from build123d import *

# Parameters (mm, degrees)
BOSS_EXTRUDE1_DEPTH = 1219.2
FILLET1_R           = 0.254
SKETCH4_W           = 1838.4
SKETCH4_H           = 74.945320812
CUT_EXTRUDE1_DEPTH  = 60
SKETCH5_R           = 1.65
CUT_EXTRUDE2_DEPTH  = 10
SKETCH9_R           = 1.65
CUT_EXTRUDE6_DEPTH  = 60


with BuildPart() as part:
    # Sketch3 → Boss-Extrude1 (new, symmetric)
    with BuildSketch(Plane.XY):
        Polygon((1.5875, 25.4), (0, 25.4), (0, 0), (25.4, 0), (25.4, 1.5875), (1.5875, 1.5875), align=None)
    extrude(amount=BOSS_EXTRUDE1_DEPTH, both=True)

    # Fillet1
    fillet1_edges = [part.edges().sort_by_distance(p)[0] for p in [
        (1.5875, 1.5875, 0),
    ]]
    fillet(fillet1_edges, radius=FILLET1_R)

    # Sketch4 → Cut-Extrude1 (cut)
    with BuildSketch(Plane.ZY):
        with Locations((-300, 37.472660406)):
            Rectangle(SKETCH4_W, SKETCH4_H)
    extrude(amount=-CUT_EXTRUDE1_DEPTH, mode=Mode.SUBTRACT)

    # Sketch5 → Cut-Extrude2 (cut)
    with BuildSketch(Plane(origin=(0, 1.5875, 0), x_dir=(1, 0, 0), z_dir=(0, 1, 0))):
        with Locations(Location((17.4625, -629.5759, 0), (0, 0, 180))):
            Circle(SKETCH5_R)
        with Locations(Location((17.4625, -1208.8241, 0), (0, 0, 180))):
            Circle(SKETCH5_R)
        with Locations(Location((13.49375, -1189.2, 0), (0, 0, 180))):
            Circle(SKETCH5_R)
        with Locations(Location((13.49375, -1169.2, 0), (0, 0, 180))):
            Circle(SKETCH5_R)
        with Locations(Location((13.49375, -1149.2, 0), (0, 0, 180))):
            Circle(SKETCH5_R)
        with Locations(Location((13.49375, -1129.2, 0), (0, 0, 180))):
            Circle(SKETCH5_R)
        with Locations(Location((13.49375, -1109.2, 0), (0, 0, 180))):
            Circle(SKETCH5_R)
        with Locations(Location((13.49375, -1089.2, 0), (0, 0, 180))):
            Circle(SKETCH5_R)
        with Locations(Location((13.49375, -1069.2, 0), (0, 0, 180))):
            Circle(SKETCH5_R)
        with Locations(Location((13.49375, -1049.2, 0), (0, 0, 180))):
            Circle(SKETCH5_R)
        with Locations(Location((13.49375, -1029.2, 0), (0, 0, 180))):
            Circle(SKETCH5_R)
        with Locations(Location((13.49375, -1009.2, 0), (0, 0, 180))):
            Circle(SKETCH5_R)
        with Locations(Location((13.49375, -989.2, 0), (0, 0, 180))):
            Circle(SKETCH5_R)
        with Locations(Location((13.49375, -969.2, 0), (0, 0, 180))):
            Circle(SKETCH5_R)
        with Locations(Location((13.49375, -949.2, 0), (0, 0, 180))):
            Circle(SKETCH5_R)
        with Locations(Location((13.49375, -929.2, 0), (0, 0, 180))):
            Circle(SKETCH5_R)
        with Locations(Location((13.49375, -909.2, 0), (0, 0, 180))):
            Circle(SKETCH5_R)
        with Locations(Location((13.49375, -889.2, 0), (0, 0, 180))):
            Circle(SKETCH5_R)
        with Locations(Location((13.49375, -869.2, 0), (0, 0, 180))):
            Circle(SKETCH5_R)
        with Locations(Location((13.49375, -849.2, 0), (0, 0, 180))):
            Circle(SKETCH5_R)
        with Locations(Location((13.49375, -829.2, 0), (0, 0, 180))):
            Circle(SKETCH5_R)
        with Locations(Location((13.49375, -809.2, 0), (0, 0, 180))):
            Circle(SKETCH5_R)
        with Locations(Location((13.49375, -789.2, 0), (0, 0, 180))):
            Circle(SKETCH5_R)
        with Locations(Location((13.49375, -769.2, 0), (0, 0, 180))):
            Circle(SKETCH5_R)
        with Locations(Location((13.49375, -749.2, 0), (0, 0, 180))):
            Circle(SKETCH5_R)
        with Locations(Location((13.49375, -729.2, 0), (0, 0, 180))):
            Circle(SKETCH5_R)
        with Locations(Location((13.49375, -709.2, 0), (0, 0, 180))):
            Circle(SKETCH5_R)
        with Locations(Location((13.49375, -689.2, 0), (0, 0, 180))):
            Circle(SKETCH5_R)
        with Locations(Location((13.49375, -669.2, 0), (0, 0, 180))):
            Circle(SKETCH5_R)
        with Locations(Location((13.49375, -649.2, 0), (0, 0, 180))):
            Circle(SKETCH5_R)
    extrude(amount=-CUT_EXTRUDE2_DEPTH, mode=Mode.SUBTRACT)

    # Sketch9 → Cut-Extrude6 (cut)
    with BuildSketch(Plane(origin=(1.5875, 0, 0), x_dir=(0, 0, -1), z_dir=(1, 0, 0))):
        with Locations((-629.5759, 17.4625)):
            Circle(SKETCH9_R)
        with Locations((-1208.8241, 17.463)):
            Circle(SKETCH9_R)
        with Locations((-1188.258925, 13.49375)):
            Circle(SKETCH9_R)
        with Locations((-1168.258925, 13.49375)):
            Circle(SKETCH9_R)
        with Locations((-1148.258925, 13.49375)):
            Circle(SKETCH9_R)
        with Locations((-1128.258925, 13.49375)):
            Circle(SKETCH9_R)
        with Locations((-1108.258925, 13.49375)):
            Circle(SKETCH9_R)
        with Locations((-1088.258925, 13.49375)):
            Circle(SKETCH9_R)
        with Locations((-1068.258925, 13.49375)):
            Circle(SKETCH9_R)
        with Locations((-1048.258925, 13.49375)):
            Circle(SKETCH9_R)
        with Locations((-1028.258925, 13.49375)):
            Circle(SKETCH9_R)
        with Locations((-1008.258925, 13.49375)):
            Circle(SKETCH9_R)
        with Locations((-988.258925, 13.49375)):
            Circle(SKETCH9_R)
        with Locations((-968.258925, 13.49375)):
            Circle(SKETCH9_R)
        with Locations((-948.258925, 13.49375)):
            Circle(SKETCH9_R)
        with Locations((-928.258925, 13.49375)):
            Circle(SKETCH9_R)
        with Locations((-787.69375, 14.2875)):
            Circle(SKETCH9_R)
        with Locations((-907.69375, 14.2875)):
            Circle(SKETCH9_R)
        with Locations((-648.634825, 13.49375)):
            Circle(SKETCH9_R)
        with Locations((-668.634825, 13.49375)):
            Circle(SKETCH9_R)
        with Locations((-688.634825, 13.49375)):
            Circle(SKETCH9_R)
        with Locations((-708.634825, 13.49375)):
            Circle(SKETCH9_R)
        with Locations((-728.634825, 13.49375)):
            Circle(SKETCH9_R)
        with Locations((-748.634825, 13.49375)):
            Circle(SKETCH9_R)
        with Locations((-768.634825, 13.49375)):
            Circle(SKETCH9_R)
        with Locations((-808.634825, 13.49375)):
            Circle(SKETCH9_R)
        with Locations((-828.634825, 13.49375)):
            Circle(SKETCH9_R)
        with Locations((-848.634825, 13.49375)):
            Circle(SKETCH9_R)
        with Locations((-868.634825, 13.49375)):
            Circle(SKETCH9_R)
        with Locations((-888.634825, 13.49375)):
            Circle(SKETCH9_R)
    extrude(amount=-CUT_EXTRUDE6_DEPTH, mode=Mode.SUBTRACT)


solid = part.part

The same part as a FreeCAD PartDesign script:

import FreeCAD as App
import Part
import Sketcher

V = App.Vector
Q = App.Units.Quantity


def edges_at(feature, points):
    """Names of the edges that pass closest to the given points."""
    edges = feature.Shape.Edges
    near = lambda p: min(range(len(edges)), key=lambda i: edges[i].distToShape(Part.Vertex(*p))[0])
    return sorted({f"Edge{near(p) + 1}" for p in points})


def add_polygon(sketch, points):
    """Adds a closed chain of lines whose ends are joined by coincident constraints."""
    first, n = sketch.GeometryCount, len(points)
    for a, b in zip(points, points[1:] + points[:1]):
        sketch.addGeometry(Part.LineSegment(App.Vector(*a, 0), App.Vector(*b, 0)), False)
    for i in range(n):
        sketch.addConstraint(Sketcher.Constraint("Coincident", first + i, 2, first + (i + 1) % n, 1))

doc = App.newDocument("Part")
params = doc.addObject("Spreadsheet::Sheet", "Params")
for row, (alias, value) in enumerate([
    ("sketch1_width", "1 in"),
    ("sketch1_width2", "0.0625 in"),
    ("pad1_length", "96 in"),
    ("fillet_radius", "0.01 in"),
    ("pocket1_length", "60 mm"),
    ("pocket2_length", "10 mm"),
    ("pocket3_length", "60 mm"),
], start=1):
    params.set(f"A{row}", alias)
    params.set(f"B{row}", "=" + value)
    params.setAlias(f"B{row}", alias)

body = doc.addObject("PartDesign::Body", "Body")

# Sketch on XY plane
sketch1 = body.newObject("Sketcher::SketchObject", "Sketch")
sketch1.AttachmentSupport = (doc.getObject("XY_Plane"), [""])
sketch1.MapMode = "FlatFace"
add_polygon(sketch1, [(1.5875, 25.4), (0, 25.4), (0, 0), (25.4, 0), (25.4, 1.5875), (1.5875, 1.5875)])  # lines 0-5
sketch1.addConstraint(Sketcher.Constraint("Horizontal", 0))
sketch1.addConstraint(Sketcher.Constraint("Vertical", 1))
sketch1.addConstraint(Sketcher.Constraint("Horizontal", 2))
sketch1.addConstraint(Sketcher.Constraint("Vertical", 3))
sketch1.addConstraint(Sketcher.Constraint("Horizontal", 4))
sketch1.addConstraint(Sketcher.Constraint("Vertical", 5))
sketch1.addConstraint(Sketcher.Constraint("Coincident", 1, 2, -1, 1))
sketch1.addConstraint(Sketcher.Constraint("Equal", 2, 1))
sketch1.addConstraint(Sketcher.Constraint("Equal", 0, 3))
sketch1.addConstraint(Sketcher.Constraint("DistanceX", 2, 1, 2, 2, Q("1 in")))
sketch1.addConstraint(Sketcher.Constraint("DistanceX", 0, 2, 0, 1, Q("0.0625 in")))
sketch1.setExpression("Constraints[15]", "Params.sketch1_width")
sketch1.setExpression("Constraints[16]", "Params.sketch1_width2")
pad1 = body.newObject("PartDesign::Pad", "Pad")
pad1.Profile = sketch1
pad1.setExpression("Length", "Params.pad1_length")
pad1.Midplane = True
doc.recompute()

fillet = body.newObject("PartDesign::Fillet", "Fillet")
fillet.Base = (pad1, edges_at(pad1, [(1.587, 1.587, 0)]))
fillet.setExpression("Radius", "Params.fillet_radius")

# Sketch on YZ plane
sketch2 = body.newObject("Sketcher::SketchObject", "Sketch001")
sketch2.AttachmentSupport = (doc.getObject("YZ_Plane"), [""])
sketch2.MapMode = "FlatFace"
add_polygon(sketch2, [(74.945321, -1219.2), (0, -1219.2), (0, 619.2), (74.945321, 619.2)])  # lines 0-3
sketch2.addConstraint(Sketcher.Constraint("Horizontal", 0))
sketch2.addConstraint(Sketcher.Constraint("Vertical", 1))
sketch2.addConstraint(Sketcher.Constraint("Horizontal", 2))
sketch2.addConstraint(Sketcher.Constraint("Vertical", 3))
sketch2.addConstraint(Sketcher.Constraint("PointOnObject", 0, 2, -2))
sketch2.addConstraint(Sketcher.Constraint("DistanceY", 0, 2, -1, 1, Q("48 in")))
sketch2.addConstraint(Sketcher.Constraint("DistanceY", 1, 1, 1, 2, 1838.4))
sketch2.addConstraint(Sketcher.Constraint("DistanceX", 0, 2, 0, 1, 74.945321))
pocket1 = body.newObject("PartDesign::Pocket", "Pocket")
pocket1.Profile = sketch2
pocket1.setExpression("Length", "Params.pocket1_length")
pocket1.Reversed = True

# Sketch on XZ plane
sketch3 = body.newObject("Sketcher::SketchObject", "Sketch002")
sketch3.AttachmentSupport = (doc.getObject("XZ_Plane"), [""])
sketch3.MapMode = "FlatFace"
sketch3.AttachmentOffset = App.Placement(V(0, 0, -0.0625 * 25.4), App.Rotation())
sketch3.addGeometry(Part.Circle(V(17.4625, 629.5759, 0), V(0, 0, 1), 1.65), False)
sketch3.addGeometry(Part.Circle(V(17.4625, 1208.8241, 0), V(0, 0, 1), 1.65), False)
sketch3.addGeometry(Part.Circle(V(13.49375, 1189.2, 0), V(0, 0, 1), 1.65), False)
sketch3.addGeometry(Part.Circle(V(13.49375, 1169.2, 0), V(0, 0, 1), 1.65), False)
sketch3.addGeometry(Part.Circle(V(13.49375, 1149.2, 0), V(0, 0, 1), 1.65), False)
sketch3.addGeometry(Part.Circle(V(13.49375, 1129.2, 0), V(0, 0, 1), 1.65), False)
sketch3.addGeometry(Part.Circle(V(13.49375, 1109.2, 0), V(0, 0, 1), 1.65), False)
sketch3.addGeometry(Part.Circle(V(13.49375, 1089.2, 0), V(0, 0, 1), 1.65), False)
sketch3.addGeometry(Part.Circle(V(13.49375, 1069.2, 0), V(0, 0, 1), 1.65), False)
sketch3.addGeometry(Part.Circle(V(13.49375, 1049.2, 0), V(0, 0, 1), 1.65), False)
sketch3.addGeometry(Part.Circle(V(13.49375, 1029.2, 0), V(0, 0, 1), 1.65), False)
sketch3.addGeometry(Part.Circle(V(13.49375, 1009.2, 0), V(0, 0, 1), 1.65), False)
sketch3.addGeometry(Part.Circle(V(13.49375, 989.2, 0), V(0, 0, 1), 1.65), False)
sketch3.addGeometry(Part.Circle(V(13.49375, 969.2, 0), V(0, 0, 1), 1.65), False)
sketch3.addGeometry(Part.Circle(V(13.49375, 949.2, 0), V(0, 0, 1), 1.65), False)
sketch3.addGeometry(Part.Circle(V(13.49375, 929.2, 0), V(0, 0, 1), 1.65), False)
sketch3.addGeometry(Part.Circle(V(13.49375, 909.2, 0), V(0, 0, 1), 1.65), False)
sketch3.addGeometry(Part.Circle(V(13.49375, 889.2, 0), V(0, 0, 1), 1.65), False)
sketch3.addGeometry(Part.Circle(V(13.49375, 869.2, 0), V(0, 0, 1), 1.65), False)
sketch3.addGeometry(Part.Circle(V(13.49375, 849.2, 0), V(0, 0, 1), 1.65), False)
sketch3.addGeometry(Part.Circle(V(13.49375, 829.2, 0), V(0, 0, 1), 1.65), False)
sketch3.addGeometry(Part.Circle(V(13.49375, 809.2, 0), V(0, 0, 1), 1.65), False)
sketch3.addGeometry(Part.Circle(V(13.49375, 789.2, 0), V(0, 0, 1), 1.65), False)
sketch3.addGeometry(Part.Circle(V(13.49375, 769.2, 0), V(0, 0, 1), 1.65), False)
sketch3.addGeometry(Part.Circle(V(13.49375, 749.2, 0), V(0, 0, 1), 1.65), False)
sketch3.addGeometry(Part.Circle(V(13.49375, 729.2, 0), V(0, 0, 1), 1.65), False)
sketch3.addGeometry(Part.Circle(V(13.49375, 709.2, 0), V(0, 0, 1), 1.65), False)
sketch3.addGeometry(Part.Circle(V(13.49375, 689.2, 0), V(0, 0, 1), 1.65), False)
sketch3.addGeometry(Part.Circle(V(13.49375, 669.2, 0), V(0, 0, 1), 1.65), False)
sketch3.addGeometry(Part.Circle(V(13.49375, 649.2, 0), V(0, 0, 1), 1.65), False)
sketch3.addConstraint(Sketcher.Constraint("Equal", 0, 1))
sketch3.addConstraint(Sketcher.Constraint("Equal", 1, 2))
sketch3.addConstraint(Sketcher.Constraint("Equal", 2, 3))
sketch3.addConstraint(Sketcher.Constraint("Equal", 3, 4))
sketch3.addConstraint(Sketcher.Constraint("Equal", 4, 5))
sketch3.addConstraint(Sketcher.Constraint("Equal", 5, 6))
sketch3.addConstraint(Sketcher.Constraint("Equal", 6, 7))
sketch3.addConstraint(Sketcher.Constraint("Equal", 7, 8))
sketch3.addConstraint(Sketcher.Constraint("Equal", 8, 9))
sketch3.addConstraint(Sketcher.Constraint("Equal", 9, 10))
sketch3.addConstraint(Sketcher.Constraint("Equal", 10, 11))
sketch3.addConstraint(Sketcher.Constraint("Equal", 11, 12))
sketch3.addConstraint(Sketcher.Constraint("Equal", 12, 13))
sketch3.addConstraint(Sketcher.Constraint("Equal", 13, 14))
sketch3.addConstraint(Sketcher.Constraint("Equal", 14, 15))
sketch3.addConstraint(Sketcher.Constraint("Equal", 15, 16))
sketch3.addConstraint(Sketcher.Constraint("Equal", 16, 17))
sketch3.addConstraint(Sketcher.Constraint("Equal", 17, 18))
sketch3.addConstraint(Sketcher.Constraint("Equal", 18, 19))
sketch3.addConstraint(Sketcher.Constraint("Equal", 19, 20))
sketch3.addConstraint(Sketcher.Constraint("Equal", 20, 21))
sketch3.addConstraint(Sketcher.Constraint("Equal", 21, 22))
sketch3.addConstraint(Sketcher.Constraint("Equal", 22, 23))
sketch3.addConstraint(Sketcher.Constraint("Equal", 23, 24))
sketch3.addConstraint(Sketcher.Constraint("Equal", 24, 25))
sketch3.addConstraint(Sketcher.Constraint("Equal", 25, 26))
sketch3.addConstraint(Sketcher.Constraint("Equal", 26, 27))
sketch3.addConstraint(Sketcher.Constraint("Equal", 27, 28))
sketch3.addConstraint(Sketcher.Constraint("Equal", 28, 29))
sketch3.addConstraint(Sketcher.Constraint("Vertical", 0, 3, 1, 3))
sketch3.addConstraint(Sketcher.Constraint("Vertical", 2, 3, 3, 3))
sketch3.addConstraint(Sketcher.Constraint("Vertical", 3, 3, 4, 3))
sketch3.addConstraint(Sketcher.Constraint("Vertical", 4, 3, 5, 3))
sketch3.addConstraint(Sketcher.Constraint("Vertical", 5, 3, 6, 3))
sketch3.addConstraint(Sketcher.Constraint("Vertical", 6, 3, 7, 3))
sketch3.addConstraint(Sketcher.Constraint("Vertical", 7, 3, 8, 3))
sketch3.addConstraint(Sketcher.Constraint("Vertical", 8, 3, 9, 3))
sketch3.addConstraint(Sketcher.Constraint("Vertical", 9, 3, 10, 3))
sketch3.addConstraint(Sketcher.Constraint("Vertical", 10, 3, 11, 3))
sketch3.addConstraint(Sketcher.Constraint("Vertical", 11, 3, 12, 3))
sketch3.addConstraint(Sketcher.Constraint("Vertical", 12, 3, 13, 3))
sketch3.addConstraint(Sketcher.Constraint("Vertical", 13, 3, 14, 3))
sketch3.addConstraint(Sketcher.Constraint("Vertical", 14, 3, 15, 3))
sketch3.addConstraint(Sketcher.Constraint("Vertical", 15, 3, 16, 3))
sketch3.addConstraint(Sketcher.Constraint("Vertical", 16, 3, 17, 3))
sketch3.addConstraint(Sketcher.Constraint("Vertical", 17, 3, 18, 3))
sketch3.addConstraint(Sketcher.Constraint("Vertical", 18, 3, 19, 3))
sketch3.addConstraint(Sketcher.Constraint("Vertical", 19, 3, 20, 3))
sketch3.addConstraint(Sketcher.Constraint("Vertical", 20, 3, 21, 3))
sketch3.addConstraint(Sketcher.Constraint("Vertical", 21, 3, 22, 3))
sketch3.addConstraint(Sketcher.Constraint("Vertical", 22, 3, 23, 3))
sketch3.addConstraint(Sketcher.Constraint("Vertical", 23, 3, 24, 3))
sketch3.addConstraint(Sketcher.Constraint("Vertical", 24, 3, 25, 3))
sketch3.addConstraint(Sketcher.Constraint("Vertical", 25, 3, 26, 3))
sketch3.addConstraint(Sketcher.Constraint("Vertical", 26, 3, 27, 3))
sketch3.addConstraint(Sketcher.Constraint("Vertical", 27, 3, 28, 3))
sketch3.addConstraint(Sketcher.Constraint("Vertical", 28, 3, 29, 3))
sketch3.addConstraint(Sketcher.Constraint("Diameter", 0, 3.3))
sketch3.addConstraint(Sketcher.Constraint("DistanceX", -1, 1, 0, 3, Q("0.6875 in")))
sketch3.addConstraint(Sketcher.Constraint("DistanceX", -1, 1, 2, 3, Q("0.53125 in")))
sketch3.addConstraint(Sketcher.Constraint("DistanceY", -1, 1, 1, 3, Q("47.5915 in")))
sketch3.addConstraint(Sketcher.Constraint("DistanceY", -1, 1, 0, 3, 629.5759))
sketch3.addConstraint(Sketcher.Constraint("DistanceY", -1, 1, 2, 3, 1189.2))
sketch3.addConstraint(Sketcher.Constraint("DistanceY", -1, 1, 3, 3, 1169.2))
sketch3.addConstraint(Sketcher.Constraint("DistanceY", -1, 1, 4, 3, 1149.2))
sketch3.addConstraint(Sketcher.Constraint("DistanceY", -1, 1, 5, 3, 1129.2))
sketch3.addConstraint(Sketcher.Constraint("DistanceY", -1, 1, 6, 3, 1109.2))
sketch3.addConstraint(Sketcher.Constraint("DistanceY", -1, 1, 7, 3, 1089.2))
sketch3.addConstraint(Sketcher.Constraint("DistanceY", -1, 1, 8, 3, 1069.2))
sketch3.addConstraint(Sketcher.Constraint("DistanceY", -1, 1, 9, 3, 1049.2))
sketch3.addConstraint(Sketcher.Constraint("DistanceY", -1, 1, 10, 3, 1029.2))
sketch3.addConstraint(Sketcher.Constraint("DistanceY", -1, 1, 11, 3, 1009.2))
sketch3.addConstraint(Sketcher.Constraint("DistanceY", -1, 1, 12, 3, 989.2))
sketch3.addConstraint(Sketcher.Constraint("DistanceY", -1, 1, 13, 3, 969.2))
sketch3.addConstraint(Sketcher.Constraint("DistanceY", -1, 1, 14, 3, 949.2))
sketch3.addConstraint(Sketcher.Constraint("DistanceY", -1, 1, 15, 3, 929.2))
sketch3.addConstraint(Sketcher.Constraint("DistanceY", -1, 1, 16, 3, 909.2))
sketch3.addConstraint(Sketcher.Constraint("DistanceY", -1, 1, 17, 3, 889.2))
sketch3.addConstraint(Sketcher.Constraint("DistanceY", -1, 1, 18, 3, 869.2))
sketch3.addConstraint(Sketcher.Constraint("DistanceY", -1, 1, 19, 3, 849.2))
sketch3.addConstraint(Sketcher.Constraint("DistanceY", -1, 1, 20, 3, 829.2))
sketch3.addConstraint(Sketcher.Constraint("DistanceY", -1, 1, 21, 3, 809.2))
sketch3.addConstraint(Sketcher.Constraint("DistanceY", -1, 1, 22, 3, 789.2))
sketch3.addConstraint(Sketcher.Constraint("DistanceY", -1, 1, 23, 3, 769.2))
sketch3.addConstraint(Sketcher.Constraint("DistanceY", -1, 1, 24, 3, 749.2))
sketch3.addConstraint(Sketcher.Constraint("DistanceY", -1, 1, 25, 3, 729.2))
sketch3.addConstraint(Sketcher.Constraint("DistanceY", -1, 1, 26, 3, 709.2))
sketch3.addConstraint(Sketcher.Constraint("DistanceY", -1, 1, 27, 3, 689.2))
sketch3.addConstraint(Sketcher.Constraint("DistanceY", -1, 1, 28, 3, 669.2))
sketch3.addConstraint(Sketcher.Constraint("DistanceY", -1, 1, 29, 3, 649.2))
pocket2 = body.newObject("PartDesign::Pocket", "Pocket001")
pocket2.Profile = sketch3
pocket2.setExpression("Length", "Params.pocket2_length")
pocket2.Reversed = True

# Sketch on YZ plane
sketch4 = body.newObject("Sketcher::SketchObject", "Sketch003")
sketch4.AttachmentSupport = (doc.getObject("YZ_Plane"), [""])
sketch4.MapMode = "FlatFace"
sketch4.AttachmentOffset = App.Placement(V(0, 0, 0.0625 * 25.4), App.Rotation())
sketch4.addGeometry(Part.Circle(V(17.4625, 629.5759, 0), V(0, 0, 1), 1.65), False)
sketch4.addGeometry(Part.Circle(V(17.463, 1208.8241, 0), V(0, 0, 1), 1.65), False)
sketch4.addGeometry(Part.Circle(V(13.49375, 1188.258925, 0), V(0, 0, 1), 1.65), False)
sketch4.addGeometry(Part.Circle(V(13.49375, 1168.258925, 0), V(0, 0, 1), 1.65), False)
sketch4.addGeometry(Part.Circle(V(13.49375, 1148.258925, 0), V(0, 0, 1), 1.65), False)
sketch4.addGeometry(Part.Circle(V(13.49375, 1128.258925, 0), V(0, 0, 1), 1.65), False)
sketch4.addGeometry(Part.Circle(V(13.49375, 1108.258925, 0), V(0, 0, 1), 1.65), False)
sketch4.addGeometry(Part.Circle(V(13.49375, 1088.258925, 0), V(0, 0, 1), 1.65), False)
sketch4.addGeometry(Part.Circle(V(13.49375, 1068.258925, 0), V(0, 0, 1), 1.65), False)
sketch4.addGeometry(Part.Circle(V(13.49375, 1048.258925, 0), V(0, 0, 1), 1.65), False)
sketch4.addGeometry(Part.Circle(V(13.49375, 1028.258925, 0), V(0, 0, 1), 1.65), False)
sketch4.addGeometry(Part.Circle(V(13.49375, 1008.258925, 0), V(0, 0, 1), 1.65), False)
sketch4.addGeometry(Part.Circle(V(13.49375, 988.258925, 0), V(0, 0, 1), 1.65), False)
sketch4.addGeometry(Part.Circle(V(13.49375, 968.258925, 0), V(0, 0, 1), 1.65), False)
sketch4.addGeometry(Part.Circle(V(13.49375, 948.258925, 0), V(0, 0, 1), 1.65), False)
sketch4.addGeometry(Part.Circle(V(13.49375, 928.258925, 0), V(0, 0, 1), 1.65), False)
sketch4.addGeometry(Part.Circle(V(14.2875, 787.69375, 0), V(0, 0, 1), 1.65), False)
sketch4.addGeometry(Part.Circle(V(14.2875, 907.69375, 0), V(0, 0, 1), 1.65), False)
sketch4.addGeometry(Part.Circle(V(13.49375, 648.634825, 0), V(0, 0, 1), 1.65), False)
sketch4.addGeometry(Part.Circle(V(13.49375, 668.634825, 0), V(0, 0, 1), 1.65), False)
sketch4.addGeometry(Part.Circle(V(13.49375, 688.634825, 0), V(0, 0, 1), 1.65), False)
sketch4.addGeometry(Part.Circle(V(13.49375, 708.634825, 0), V(0, 0, 1), 1.65), False)
sketch4.addGeometry(Part.Circle(V(13.49375, 728.634825, 0), V(0, 0, 1), 1.65), False)
sketch4.addGeometry(Part.Circle(V(13.49375, 748.634825, 0), V(0, 0, 1), 1.65), False)
sketch4.addGeometry(Part.Circle(V(13.49375, 768.634825, 0), V(0, 0, 1), 1.65), False)
sketch4.addGeometry(Part.Circle(V(13.49375, 808.634825, 0), V(0, 0, 1), 1.65), False)
sketch4.addGeometry(Part.Circle(V(13.49375, 828.634825, 0), V(0, 0, 1), 1.65), False)
sketch4.addGeometry(Part.Circle(V(13.49375, 848.634825, 0), V(0, 0, 1), 1.65), False)
sketch4.addGeometry(Part.Circle(V(13.49375, 868.634825, 0), V(0, 0, 1), 1.65), False)
sketch4.addGeometry(Part.Circle(V(13.49375, 888.634825, 0), V(0, 0, 1), 1.65), False)
sketch4.addConstraint(Sketcher.Constraint("Equal", 0, 1))
sketch4.addConstraint(Sketcher.Constraint("Equal", 1, 2))
sketch4.addConstraint(Sketcher.Constraint("Equal", 2, 3))
sketch4.addConstraint(Sketcher.Constraint("Equal", 3, 4))
sketch4.addConstraint(Sketcher.Constraint("Equal", 4, 5))
sketch4.addConstraint(Sketcher.Constraint("Equal", 5, 6))
sketch4.addConstraint(Sketcher.Constraint("Equal", 6, 7))
sketch4.addConstraint(Sketcher.Constraint("Equal", 7, 8))
sketch4.addConstraint(Sketcher.Constraint("Equal", 8, 9))
sketch4.addConstraint(Sketcher.Constraint("Equal", 9, 10))
sketch4.addConstraint(Sketcher.Constraint("Equal", 10, 11))
sketch4.addConstraint(Sketcher.Constraint("Equal", 11, 12))
sketch4.addConstraint(Sketcher.Constraint("Equal", 12, 13))
sketch4.addConstraint(Sketcher.Constraint("Equal", 13, 14))
sketch4.addConstraint(Sketcher.Constraint("Equal", 14, 15))
sketch4.addConstraint(Sketcher.Constraint("Equal", 15, 16))
sketch4.addConstraint(Sketcher.Constraint("Equal", 16, 17))
sketch4.addConstraint(Sketcher.Constraint("Equal", 17, 18))
sketch4.addConstraint(Sketcher.Constraint("Equal", 18, 19))
sketch4.addConstraint(Sketcher.Constraint("Equal", 19, 20))
sketch4.addConstraint(Sketcher.Constraint("Equal", 20, 21))
sketch4.addConstraint(Sketcher.Constraint("Equal", 21, 22))
sketch4.addConstraint(Sketcher.Constraint("Equal", 22, 23))
sketch4.addConstraint(Sketcher.Constraint("Equal", 23, 24))
sketch4.addConstraint(Sketcher.Constraint("Equal", 24, 25))
sketch4.addConstraint(Sketcher.Constraint("Equal", 25, 26))
sketch4.addConstraint(Sketcher.Constraint("Equal", 26, 27))
sketch4.addConstraint(Sketcher.Constraint("Equal", 27, 28))
sketch4.addConstraint(Sketcher.Constraint("Equal", 28, 29))
sketch4.addConstraint(Sketcher.Constraint("Vertical", 2, 3, 3, 3))
sketch4.addConstraint(Sketcher.Constraint("Vertical", 3, 3, 4, 3))
sketch4.addConstraint(Sketcher.Constraint("Vertical", 4, 3, 5, 3))
sketch4.addConstraint(Sketcher.Constraint("Vertical", 5, 3, 6, 3))
sketch4.addConstraint(Sketcher.Constraint("Vertical", 6, 3, 7, 3))
sketch4.addConstraint(Sketcher.Constraint("Vertical", 7, 3, 8, 3))
sketch4.addConstraint(Sketcher.Constraint("Vertical", 8, 3, 9, 3))
sketch4.addConstraint(Sketcher.Constraint("Vertical", 9, 3, 10, 3))
sketch4.addConstraint(Sketcher.Constraint("Vertical", 10, 3, 11, 3))
sketch4.addConstraint(Sketcher.Constraint("Vertical", 11, 3, 12, 3))
sketch4.addConstraint(Sketcher.Constraint("Vertical", 12, 3, 13, 3))
sketch4.addConstraint(Sketcher.Constraint("Vertical", 13, 3, 14, 3))
sketch4.addConstraint(Sketcher.Constraint("Vertical", 14, 3, 15, 3))
sketch4.addConstraint(Sketcher.Constraint("Vertical", 16, 3, 17, 3))
sketch4.addConstraint(Sketcher.Constraint("Vertical", 15, 3, 18, 3))
sketch4.addConstraint(Sketcher.Constraint("Vertical", 18, 3, 19, 3))
sketch4.addConstraint(Sketcher.Constraint("Vertical", 19, 3, 20, 3))
sketch4.addConstraint(Sketcher.Constraint("Vertical", 20, 3, 21, 3))
sketch4.addConstraint(Sketcher.Constraint("Vertical", 21, 3, 22, 3))
sketch4.addConstraint(Sketcher.Constraint("Vertical", 22, 3, 23, 3))
sketch4.addConstraint(Sketcher.Constraint("Vertical", 23, 3, 24, 3))
sketch4.addConstraint(Sketcher.Constraint("Vertical", 24, 3, 25, 3))
sketch4.addConstraint(Sketcher.Constraint("Vertical", 25, 3, 26, 3))
sketch4.addConstraint(Sketcher.Constraint("Vertical", 26, 3, 27, 3))
sketch4.addConstraint(Sketcher.Constraint("Vertical", 27, 3, 28, 3))
sketch4.addConstraint(Sketcher.Constraint("Vertical", 28, 3, 29, 3))
sketch4.addConstraint(Sketcher.Constraint("Diameter", 0, 3.3))
sketch4.addConstraint(Sketcher.Constraint("DistanceX", -1, 1, 0, 3, Q("0.6875 in")))
sketch4.addConstraint(Sketcher.Constraint("DistanceX", -1, 1, 2, 3, Q("0.53125 in")))
sketch4.addConstraint(Sketcher.Constraint("DistanceX", -1, 1, 16, 3, Q("0.5625 in")))
sketch4.addConstraint(Sketcher.Constraint("DistanceY", -1, 1, 1, 3, Q("47.5915 in")))
sketch4.addConstraint(Sketcher.Constraint("DistanceY", -1, 1, 0, 3, 629.5759))
sketch4.addConstraint(Sketcher.Constraint("DistanceX", -1, 1, 1, 3, 17.463))
sketch4.addConstraint(Sketcher.Constraint("DistanceY", 3, 3, 2, 3, 20.0))
sketch4.addConstraint(Sketcher.Constraint("DistanceY", 4, 3, 3, 3, 20.0))
sketch4.addConstraint(Sketcher.Constraint("DistanceY", 5, 3, 4, 3, 20.0))
sketch4.addConstraint(Sketcher.Constraint("DistanceY", 6, 3, 5, 3, 20.0))
sketch4.addConstraint(Sketcher.Constraint("DistanceY", 7, 3, 6, 3, 20.0))
sketch4.addConstraint(Sketcher.Constraint("DistanceY", 8, 3, 7, 3, 20.0))
sketch4.addConstraint(Sketcher.Constraint("DistanceY", 9, 3, 8, 3, 20.0))
sketch4.addConstraint(Sketcher.Constraint("DistanceY", 10, 3, 9, 3, 20.0))
sketch4.addConstraint(Sketcher.Constraint("DistanceY", 11, 3, 10, 3, 20.0))
sketch4.addConstraint(Sketcher.Constraint("DistanceY", 12, 3, 11, 3, 20.0))
sketch4.addConstraint(Sketcher.Constraint("DistanceY", 13, 3, 12, 3, 20.0))
sketch4.addConstraint(Sketcher.Constraint("DistanceY", 14, 3, 13, 3, 20.0))
sketch4.addConstraint(Sketcher.Constraint("DistanceY", 15, 3, 14, 3, 20.0))
sketch4.addConstraint(Sketcher.Constraint("DistanceY", 18, 3, 15, 3, 279.6241))
sketch4.addConstraint(Sketcher.Constraint("DistanceY", 18, 3, 19, 3, 20.0))
sketch4.addConstraint(Sketcher.Constraint("DistanceY", 19, 3, 20, 3, 20.0))
sketch4.addConstraint(Sketcher.Constraint("DistanceY", 20, 3, 21, 3, 20.0))
sketch4.addConstraint(Sketcher.Constraint("DistanceY", 21, 3, 22, 3, 20.0))
sketch4.addConstraint(Sketcher.Constraint("DistanceY", 22, 3, 23, 3, 20.0))
sketch4.addConstraint(Sketcher.Constraint("DistanceY", 23, 3, 24, 3, 20.0))
sketch4.addConstraint(Sketcher.Constraint("DistanceY", 24, 3, 25, 3, 40.0))
sketch4.addConstraint(Sketcher.Constraint("DistanceY", 25, 3, 26, 3, 20.0))
sketch4.addConstraint(Sketcher.Constraint("DistanceY", 26, 3, 27, 3, 20.0))
sketch4.addConstraint(Sketcher.Constraint("DistanceY", 27, 3, 28, 3, 20.0))
sketch4.addConstraint(Sketcher.Constraint("DistanceY", 28, 3, 29, 3, 20.0))
sketch4.addConstraint(Sketcher.Constraint("DistanceY", -1, 1, 16, 3, 787.69375))
sketch4.addConstraint(Sketcher.Constraint("DistanceY", -1, 1, 17, 3, 907.69375))
sketch4.addConstraint(Sketcher.Constraint("DistanceY", -1, 1, 2, 3, 1188.258925))
pocket3 = body.newObject("PartDesign::Pocket", "Pocket002")
pocket3.Profile = sketch4
pocket3.setExpression("Length", "Params.pocket3_length")

doc.recompute()
